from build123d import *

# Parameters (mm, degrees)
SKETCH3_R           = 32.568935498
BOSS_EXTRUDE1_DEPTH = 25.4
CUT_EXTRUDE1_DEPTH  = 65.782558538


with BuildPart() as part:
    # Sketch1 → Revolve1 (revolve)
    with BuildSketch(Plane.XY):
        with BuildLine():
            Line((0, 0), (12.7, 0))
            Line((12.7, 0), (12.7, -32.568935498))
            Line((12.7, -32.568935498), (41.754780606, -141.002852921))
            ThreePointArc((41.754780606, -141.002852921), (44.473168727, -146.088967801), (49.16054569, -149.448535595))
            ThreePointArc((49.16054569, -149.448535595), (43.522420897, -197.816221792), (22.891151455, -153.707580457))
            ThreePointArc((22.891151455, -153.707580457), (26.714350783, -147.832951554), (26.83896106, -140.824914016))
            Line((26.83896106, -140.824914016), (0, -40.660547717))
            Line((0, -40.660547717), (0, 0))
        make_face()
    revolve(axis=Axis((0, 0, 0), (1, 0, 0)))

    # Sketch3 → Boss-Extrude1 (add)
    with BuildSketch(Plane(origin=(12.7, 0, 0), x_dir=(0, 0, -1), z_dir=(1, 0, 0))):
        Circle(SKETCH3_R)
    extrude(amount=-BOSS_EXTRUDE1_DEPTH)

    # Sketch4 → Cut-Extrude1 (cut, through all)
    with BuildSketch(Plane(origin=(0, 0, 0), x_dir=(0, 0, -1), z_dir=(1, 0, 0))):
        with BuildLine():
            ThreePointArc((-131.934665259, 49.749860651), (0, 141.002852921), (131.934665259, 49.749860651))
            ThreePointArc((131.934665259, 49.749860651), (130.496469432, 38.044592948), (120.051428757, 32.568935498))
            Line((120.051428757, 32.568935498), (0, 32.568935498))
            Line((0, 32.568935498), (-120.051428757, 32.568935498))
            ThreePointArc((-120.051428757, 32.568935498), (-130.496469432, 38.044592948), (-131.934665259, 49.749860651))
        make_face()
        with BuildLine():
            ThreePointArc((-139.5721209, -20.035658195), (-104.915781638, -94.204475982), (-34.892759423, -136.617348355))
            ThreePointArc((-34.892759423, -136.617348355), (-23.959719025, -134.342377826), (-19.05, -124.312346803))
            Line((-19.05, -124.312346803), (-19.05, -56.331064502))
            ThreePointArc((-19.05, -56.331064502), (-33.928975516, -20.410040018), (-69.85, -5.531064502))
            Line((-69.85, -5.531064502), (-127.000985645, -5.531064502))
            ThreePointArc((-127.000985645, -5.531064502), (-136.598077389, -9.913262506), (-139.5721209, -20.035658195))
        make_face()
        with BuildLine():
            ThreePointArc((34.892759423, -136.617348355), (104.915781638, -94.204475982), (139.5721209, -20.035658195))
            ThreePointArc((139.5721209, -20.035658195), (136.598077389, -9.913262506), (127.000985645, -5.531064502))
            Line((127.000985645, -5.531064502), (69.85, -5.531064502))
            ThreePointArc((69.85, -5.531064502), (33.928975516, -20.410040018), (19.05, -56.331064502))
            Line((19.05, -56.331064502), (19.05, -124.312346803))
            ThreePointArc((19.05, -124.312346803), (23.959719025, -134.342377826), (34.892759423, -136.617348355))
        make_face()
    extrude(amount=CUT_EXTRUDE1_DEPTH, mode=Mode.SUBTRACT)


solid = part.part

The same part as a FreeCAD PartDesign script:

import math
import FreeCAD as App
import Part
import Sketcher

V = App.Vector
Q = App.Units.Quantity

doc = App.newDocument("Part")
body = doc.addObject("PartDesign::Body", "Body")

# Sketch on XY plane
sketch1 = doc.addObject("Sketcher::SketchObject", "Sketch")
body.addObject(sketch1)
sketch1.AttachmentSupport = (doc.XY_Plane, [""])
sketch1.MapMode = "FlatFace"
sketch1.addGeometry([
    Part.LineSegment(V(13, 0, 0), V(0, 0, 0)),  # 0
    Part.LineSegment(V(0, 0, 0), V(0, -41, 0)),  # 1
    Part.LineSegment(V(0, -41, 0), V(27, -141, 0)),  # 2
    Part.ArcOfCircle(Part.Circle(V(15, -144, 0), V(0, 0, 1), 13), math.radians(-49), math.radians(15)),  # 3
    Part.ArcOfCircle(Part.Circle(V(39, -173, 0), V(0, 0, 1), 25), math.radians(131), math.radians(427)),  # 4
    Part.ArcOfCircle(Part.Circle(V(54, -138, 0), V(0, 0, 1), 13), math.radians(-165), math.radians(-113)),  # 5
    Part.LineSegment(V(42, -141, 0), V(13, -33, 0)),  # 6
    Part.LineSegment(V(13, -33, 0), V(13, 0, 0)),  # 7
], False)
sketch1.addConstraint([
    Sketcher.Constraint("Coincident", 0, 2, 1, 1),
    Sketcher.Constraint("Coincident", 1, 2, 2, 1),
    Sketcher.Constraint("Tangent", 2, 2, 3, 2),
    Sketcher.Constraint("Tangent", 3, 1, 4, 1),
    Sketcher.Constraint("Tangent", 4, 2, 5, 2),
    Sketcher.Constraint("Tangent", 5, 1, 6, 1),
    Sketcher.Constraint("Coincident", 6, 2, 7, 1),
    Sketcher.Constraint("Coincident", 7, 2, 0, 1),
    Sketcher.Constraint("Horizontal", 0),
    Sketcher.Constraint("Vertical", 1),
    Sketcher.Constraint("Vertical", 7),
    Sketcher.Constraint("Coincident", 0, 2, -1, 1),
    Sketcher.Constraint("Equal", 3, 5),
    Sketcher.Constraint("Parallel", 2, 6),
    Sketcher.Constraint("Radius", 3, Q("0.5 in")),
    Sketcher.Constraint("DistanceX", 0, 2, 0, 1, Q("0.5 in")),
    Sketcher.Constraint("Angle", 2, Q("-75 deg")),
    Sketcher.Constraint("Radius", 4, 25.310886),
    Sketcher.Constraint("DistanceX", 2, 2, 5, 3, Q("1.0701999 in")),
    Sketcher.Constraint("DistanceY", 4, 3, 3, 1, 19.123998),
    Sketcher.Constraint("Distance", 6, 112.259052),
    Sketcher.Constraint("DistanceY", 1, 2, 1, 1, 40.660548),
])
revolution = doc.addObject("PartDesign::Revolution", "Revolution")
body.addObject(revolution)
revolution.Profile = sketch1
revolution.ReferenceAxis = (sketch1, ["H_Axis"])
revolution.Angle = 360

# Sketch on YZ plane
sketch2 = doc.addObject("Sketcher::SketchObject", "Sketch001")
body.addObject(sketch2)
sketch2.AttachmentSupport = (doc.YZ_Plane, [""])
sketch2.MapMode = "FlatFace"
sketch2.AttachmentOffset = App.Placement(V(0, 0, 0.5 * 25.4), App.Rotation())
sketch2.addGeometry(Part.Circle(V(0, 0, 0), V(0, 0, 1), 33), False)
sketch2.addConstraint([
    Sketcher.Constraint("Coincident", 0, 3, -1, 1),
    Sketcher.Constraint("Diameter", 0, 65.137871),
])
pad1 = doc.addObject("PartDesign::Pad", "Pad")
body.addObject(pad1)
pad1.Profile = sketch2
pad1.Length = Q("1 in")
pad1.Reversed = True

# Sketch on YZ plane
sketch3 = doc.addObject("Sketcher::SketchObject", "Sketch002")
body.addObject(sketch3)
sketch3.AttachmentSupport = (doc.YZ_Plane, [""])
sketch3.MapMode = "FlatFace"
sketch3.addGeometry([
    Part.ArcOfCircle(Part.Circle(V(0, 0, 0), V(0, 0, 1), 141), math.radians(-69), math.radians(69)),  # 0
    Part.ArcOfCircle(Part.Circle(V(45, 120, 0), V(0, 0, 1), 13), math.radians(69), math.radians(180)),  # 1
    Part.LineSegment(V(33, 120, 0), V(33, -120, 0)),  # 2
    Part.ArcOfCircle(Part.Circle(V(45, -120, 0), V(0, 0, 1), 13), math.radians(-180), math.radians(-69)),  # 3
    Part.ArcOfCircle(Part.Circle(V(0, 0, 0), V(0, 0, 1), 141), math.radians(98), math.radians(166)),  # 4
    Part.ArcOfCircle(Part.Circle(V(-124, 32, 0), V(0, 0, 1), 13), math.radians(166), math.radians(270)),  # 5
    Part.LineSegment(V(-124, 19, 0), V(-56, 19, 0)),  # 6
    Part.ArcOfCircle(Part.Circle(V(-56, 70, 0), V(0, 0, 1), 51), math.radians(-90), math.radians(0)),  # 7
    Part.LineSegment(V(-6, 70, 0), V(-6, 127, 0)),  # 8
    Part.ArcOfCircle(Part.Circle(V(-18, 127, 0), V(0, 0, 1), 13), math.radians(0), math.radians(98)),  # 9
    Part.ArcOfCircle(Part.Circle(V(0, 0, 0), V(0, 0, 1), 141), math.radians(-166), math.radians(-98)),  # 10
    Part.ArcOfCircle(Part.Circle(V(-18, -127, 0), V(0, 0, 1), 13), math.radians(-98), math.radians(0)),  # 11
    Part.LineSegment(V(-6, -127, 0), V(-6, -70, 0)),  # 12
    Part.ArcOfCircle(Part.Circle(V(-56, -70, 0), V(0, 0, 1), 51), math.radians(0), math.radians(90)),  # 13
    Part.LineSegment(V(-56, -19, 0), V(-124, -19, 0)),  # 14
    Part.ArcOfCircle(Part.Circle(V(-124, -32, 0), V(0, 0, 1), 13), math.radians(90), math.radians(194)),  # 15
], False)
sketch3.addConstraint([
    Sketcher.Constraint("Tangent", 0, 2, 1, 1),
    Sketcher.Constraint("Tangent", 1, 2, 2, 1),
    Sketcher.Constraint("Tangent", 2, 2, 3, 1),
    Sketcher.Constraint("Tangent", 3, 2, 0, 1),
    Sketcher.Constraint("Tangent", 4, 2, 5, 1),
    Sketcher.Constraint("Tangent", 5, 2, 6, 1),
    Sketcher.Constraint("Tangent", 6, 2, 7, 1),
    Sketcher.Constraint("Tangent", 7, 2, 8, 1),
    Sketcher.Constraint("Tangent", 8, 2, 9, 1),
    Sketcher.Constraint("Tangent", 9, 2, 4, 1),
    Sketcher.Constraint("Tangent", 10, 2, 11, 1),
    Sketcher.Constraint("Tangent", 11, 2, 12, 1),
    Sketcher.Constraint("Tangent", 12, 2, 13, 1),
    Sketcher.Constraint("Tangent", 13, 2, 14, 1),
    Sketcher.Constraint("Tangent", 14, 2, 15, 1),
    Sketcher.Constraint("Tangent", 15, 2, 10, 1),
    Sketcher.Constraint("Vertical", 2),
    Sketcher.Constraint("Horizontal", 6),
    Sketcher.Constraint("Vertical", 8),
    Sketcher.Constraint("Vertical", 12),
    Sketcher.Constraint("Horizontal", 14),
    Sketcher.Constraint("Coincident", 0, 3, -1, 1),
    Sketcher.Constraint("Coincident", 4, 3, -1, 1),
    Sketcher.Constraint("Coincident", 10, 3, -1, 1),
    Sketcher.Constraint("Equal", 1, 3),
    Sketcher.Constraint("Equal", 0, 4),
    Sketcher.Constraint("Equal", 3, 5),
    Sketcher.Constraint("Equal", 5, 9),
    Sketcher.Constraint("Equal", 4, 10),
    Sketcher.Constraint("Equal", 9, 11),
    Sketcher.Constraint("Equal", 7, 13),
    Sketcher.Constraint("Equal", 11, 15),
    Sketcher.Constraint("Symmetric", 7, 3, 13, 3, -1),
    Sketcher.Constraint("Radius", 7, Q("2 in")),
    Sketcher.Constraint("Radius", 1, Q("0.5 in")),
    Sketcher.Constraint("DistanceX", 7, 3, 1, 3, Q("4 in")),
    Sketcher.Constraint("DistanceY", 15, 3, 7, 3, Q("4 in")),
    Sketcher.Constraint("Radius", 0, 141.002853),
    Sketcher.Constraint("DistanceX", 6, 1, 6, 2, 67.981282),
])
pocket1 = doc.addObject("PartDesign::Pocket", "Pocket")
body.addObject(pocket1)
pocket1.Profile = sketch3
pocket1.Type = "ThroughAll"
pocket1.Reversed = True

doc.recompute()
